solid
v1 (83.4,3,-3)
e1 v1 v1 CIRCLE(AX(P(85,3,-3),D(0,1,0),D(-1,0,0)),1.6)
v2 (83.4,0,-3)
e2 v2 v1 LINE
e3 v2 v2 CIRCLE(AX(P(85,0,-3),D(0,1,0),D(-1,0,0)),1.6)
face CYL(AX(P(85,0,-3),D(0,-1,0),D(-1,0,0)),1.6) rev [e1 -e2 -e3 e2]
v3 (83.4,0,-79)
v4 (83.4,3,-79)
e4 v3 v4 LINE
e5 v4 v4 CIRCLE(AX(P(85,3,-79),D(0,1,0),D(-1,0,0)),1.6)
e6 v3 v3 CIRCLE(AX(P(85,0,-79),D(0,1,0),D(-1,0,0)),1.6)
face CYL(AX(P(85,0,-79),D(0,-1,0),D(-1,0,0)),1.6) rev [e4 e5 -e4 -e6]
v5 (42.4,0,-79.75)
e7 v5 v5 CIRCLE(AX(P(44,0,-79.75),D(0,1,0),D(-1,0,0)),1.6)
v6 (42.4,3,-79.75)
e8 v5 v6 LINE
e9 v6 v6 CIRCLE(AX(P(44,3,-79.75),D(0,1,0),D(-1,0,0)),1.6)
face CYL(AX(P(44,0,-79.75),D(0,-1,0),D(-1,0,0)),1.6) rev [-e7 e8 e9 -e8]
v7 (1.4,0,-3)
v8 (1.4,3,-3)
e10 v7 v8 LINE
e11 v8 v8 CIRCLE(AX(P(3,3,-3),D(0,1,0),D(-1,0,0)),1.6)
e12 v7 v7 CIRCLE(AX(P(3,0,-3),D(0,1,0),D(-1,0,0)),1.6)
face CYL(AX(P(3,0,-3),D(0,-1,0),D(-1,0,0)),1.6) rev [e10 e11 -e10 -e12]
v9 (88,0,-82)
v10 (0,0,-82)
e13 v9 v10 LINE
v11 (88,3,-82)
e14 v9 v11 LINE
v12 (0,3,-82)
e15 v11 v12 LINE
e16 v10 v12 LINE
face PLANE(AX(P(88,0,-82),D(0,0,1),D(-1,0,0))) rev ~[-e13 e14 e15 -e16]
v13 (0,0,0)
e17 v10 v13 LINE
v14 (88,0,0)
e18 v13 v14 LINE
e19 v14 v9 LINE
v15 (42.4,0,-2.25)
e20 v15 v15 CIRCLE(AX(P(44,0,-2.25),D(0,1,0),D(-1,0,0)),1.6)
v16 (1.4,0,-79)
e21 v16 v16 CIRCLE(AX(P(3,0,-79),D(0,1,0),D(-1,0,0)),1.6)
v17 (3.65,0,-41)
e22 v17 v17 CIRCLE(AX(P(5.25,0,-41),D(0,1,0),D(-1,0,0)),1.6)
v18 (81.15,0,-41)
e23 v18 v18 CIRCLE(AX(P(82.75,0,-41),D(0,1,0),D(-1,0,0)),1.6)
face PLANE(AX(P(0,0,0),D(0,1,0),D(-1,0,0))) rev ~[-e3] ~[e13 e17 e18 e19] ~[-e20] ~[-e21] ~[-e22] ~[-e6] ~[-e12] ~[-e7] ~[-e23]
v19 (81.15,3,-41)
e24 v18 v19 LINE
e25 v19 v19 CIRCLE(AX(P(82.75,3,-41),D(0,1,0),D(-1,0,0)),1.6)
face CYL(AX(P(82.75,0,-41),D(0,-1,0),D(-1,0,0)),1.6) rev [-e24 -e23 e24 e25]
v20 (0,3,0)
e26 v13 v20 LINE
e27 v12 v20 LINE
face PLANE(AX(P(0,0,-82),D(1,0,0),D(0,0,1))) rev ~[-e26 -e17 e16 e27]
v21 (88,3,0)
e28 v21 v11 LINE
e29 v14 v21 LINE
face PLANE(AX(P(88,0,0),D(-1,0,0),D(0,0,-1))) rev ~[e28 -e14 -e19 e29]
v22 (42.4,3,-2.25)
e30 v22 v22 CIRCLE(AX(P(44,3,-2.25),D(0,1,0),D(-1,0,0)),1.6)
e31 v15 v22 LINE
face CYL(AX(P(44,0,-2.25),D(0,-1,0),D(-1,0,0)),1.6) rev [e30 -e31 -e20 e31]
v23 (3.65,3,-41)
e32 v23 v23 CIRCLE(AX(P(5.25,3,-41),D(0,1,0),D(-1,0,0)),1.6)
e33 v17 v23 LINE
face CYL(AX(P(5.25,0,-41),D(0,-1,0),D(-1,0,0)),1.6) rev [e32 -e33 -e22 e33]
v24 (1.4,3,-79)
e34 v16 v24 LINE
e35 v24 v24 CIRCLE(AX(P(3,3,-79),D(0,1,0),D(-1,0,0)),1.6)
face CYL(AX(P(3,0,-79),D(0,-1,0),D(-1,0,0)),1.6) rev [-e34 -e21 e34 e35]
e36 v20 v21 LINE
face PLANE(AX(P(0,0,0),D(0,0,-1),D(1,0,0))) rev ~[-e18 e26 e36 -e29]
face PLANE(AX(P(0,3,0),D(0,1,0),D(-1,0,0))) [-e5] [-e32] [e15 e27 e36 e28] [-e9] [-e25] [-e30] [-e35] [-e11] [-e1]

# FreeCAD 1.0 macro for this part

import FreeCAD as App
import Part
import Sketcher
from FreeCAD import Vector

doc = App.newDocument("Part")
params = doc.addObject("Spreadsheet::Sheet", "Params")
for row, (alias, value) in enumerate([
    ("sketch1_diameter", "3.2 mm"),
    ("sketch1_width", "88 mm"),
    ("sketch1_height", "82 mm"),
    ("pad1_length", "3 mm"),
], start=1):
    params.set(f"A{row}", alias)
    params.set(f"B{row}", "=" + value)
    params.setAlias(f"B{row}", alias)

body = doc.addObject("PartDesign::Body", "Body")

sketch1 = body.newObject("Sketcher::SketchObject", "Sketch")
sketch1.AttachmentSupport = (doc.getObject("XZ_Plane"), [""])
sketch1.MapMode = "FlatFace"
sketch1.addGeometry([
    Part.LineSegment(Vector(0, -82, 0), Vector(0, 0, 0)),
    Part.LineSegment(Vector(0, 0, 0), Vector(88, 0, 0)),
    Part.LineSegment(Vector(88, 0, 0), Vector(88, -82, 0)),
    Part.LineSegment(Vector(88, -82, 0), Vector(0, -82, 0)),
    Part.Circle(Vector(85, -79, 0), Vector(0, 0, 1), 1.6),
    Part.Circle(Vector(44, -79.8, 0), Vector(0, 0, 1), 1.6),
    Part.Circle(Vector(3, -79, 0), Vector(0, 0, 1), 1.6),
    Part.Circle(Vector(82.8, -41, 0), Vector(0, 0, 1), 1.6),
    Part.Circle(Vector(85, -3, 0), Vector(0, 0, 1), 1.6),
    Part.Circle(Vector(5.2, -41, 0), Vector(0, 0, 1), 1.6),
    Part.Circle(Vector(44, -2.2, 0), Vector(0, 0, 1), 1.6),
    Part.Circle(Vector(3, -3, 0), Vector(0, 0, 1), 1.6),
], False)
sketch1.addConstraint([
    Sketcher.Constraint("Coincident", 0, 2, 1, 1),
    Sketcher.Constraint("Coincident", 1, 2, 2, 1),
    Sketcher.Constraint("Coincident", 2, 2, 3, 1),
    Sketcher.Constraint("Coincident", 3, 2, 0, 1),
    Sketcher.Constraint("Vertical", 0),
    Sketcher.Constraint("Horizontal", 1),
    Sketcher.Constraint("Vertical", 2),
    Sketcher.Constraint("Horizontal", 3),
    Sketcher.Constraint("Coincident", 0, 2, -1, 1),
    Sketcher.Constraint("Equal", 4, 5),
    Sketcher.Constraint("Equal", 5, 6),
    Sketcher.Constraint("Equal", 6, 7),
    Sketcher.Constraint("Equal", 7, 8),
    Sketcher.Constraint("Equal", 8, 9),
    Sketcher.Constraint("Equal", 9, 10),
    Sketcher.Constraint("Equal", 10, 11),
    Sketcher.Constraint("Horizontal", 4, 3, 6, 3),
    Sketcher.Constraint("Horizontal", 7, 3, 9, 3),
    Sketcher.Constraint("Horizontal", 8, 3, 11, 3),
    Sketcher.Constraint("Vertical", 4, 3, 8, 3),
    Sketcher.Constraint("Vertical", 5, 3, 10, 3),
    Sketcher.Constraint("Vertical", 6, 3, 11, 3),
    Sketcher.Constraint("Diameter", 4, 3.2),
    Sketcher.Constraint("DistanceX", 1, 1, 1, 2, 88.0),
    Sketcher.Constraint("DistanceY", 0, 1, 0, 2, 82.0),
    Sketcher.Constraint("DistanceX", -1, 1, 5, 3, 44.0),
    Sketcher.Constraint("DistanceX", -1, 1, 6, 3, 3.0),
    Sketcher.Constraint("DistanceY", 7, 3, -1, 1, 41.0),
    Sketcher.Constraint("DistanceY", 8, 3, -1, 1, 3.0),
    Sketcher.Constraint("DistanceX", 5, 3, 4, 3, 41.0),
    Sketcher.Constraint("DistanceY", 2, 2, 4, 3, 3.0),
    Sketcher.Constraint("DistanceY", 10, 3, -1, 1, 2.25),
    Sketcher.Constraint("DistanceY", 5, 3, 4, 3, 0.75),
    Sketcher.Constraint("DistanceX", 7, 3, 4, 3, 2.25),
    Sketcher.Constraint("DistanceX", 6, 3, 9, 3, 2.25),
])
sketch1.setExpression("Constraints[22]", "Params.sketch1_diameter")
sketch1.setExpression("Constraints[23]", "Params.sketch1_width")
sketch1.setExpression("Constraints[24]", "Params.sketch1_height")
pad1 = body.newObject("PartDesign::Pad", "Pad")
pad1.Profile = sketch1
pad1.setExpression("Length", "Params.pad1_length")
pad1.Reversed = True

doc.recompute()
